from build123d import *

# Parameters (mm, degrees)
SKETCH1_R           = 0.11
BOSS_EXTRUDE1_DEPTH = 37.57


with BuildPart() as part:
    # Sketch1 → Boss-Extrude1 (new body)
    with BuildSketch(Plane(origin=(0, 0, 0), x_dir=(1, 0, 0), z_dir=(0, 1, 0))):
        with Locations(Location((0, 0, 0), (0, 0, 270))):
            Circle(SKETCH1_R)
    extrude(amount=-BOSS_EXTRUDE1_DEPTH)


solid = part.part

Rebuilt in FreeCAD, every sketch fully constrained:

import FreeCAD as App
import Part
import Sketcher

doc = App.newDocument("Part")
body = doc.addObject("PartDesign::Body", "Body")

sketch1 = body.newObject("Sketcher::SketchObject", "Sketch")
sketch1.AttachmentSupport = (doc.getObject("XZ_Plane"), [""])
sketch1.MapMode = "FlatFace"
sketch1.addGeometry(Part.Circle(App.Vector(0, 0, 0), App.Vector(0, 0, 1), 0.11), False)
sketch1.addConstraint(Sketcher.Constraint("Coincident", 0, 3, -1, 1))
sketch1.addConstraint(Sketcher.Constraint("Diameter", 0, 0.22))
pad1 = body.newObject("PartDesign::Pad", "Pad")
pad1.Profile = sketch1
pad1.Length = 37.57

doc.recompute()
